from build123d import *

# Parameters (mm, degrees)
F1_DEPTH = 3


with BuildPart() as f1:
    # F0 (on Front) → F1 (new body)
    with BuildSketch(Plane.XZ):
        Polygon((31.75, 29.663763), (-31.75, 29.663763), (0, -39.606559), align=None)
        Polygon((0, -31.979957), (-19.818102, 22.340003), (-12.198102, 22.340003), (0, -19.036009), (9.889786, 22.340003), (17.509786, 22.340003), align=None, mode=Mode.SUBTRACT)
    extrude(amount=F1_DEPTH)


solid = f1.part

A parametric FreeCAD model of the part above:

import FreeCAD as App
import Part
import Sketcher
Q = App.Units.Quantity


def add_polygon(sketch, points):
    """Adds a closed chain of lines whose ends are joined by coincident constraints."""
    first, n = sketch.GeometryCount, len(points)
    for a, b in zip(points, points[1:] + points[:1]):
        sketch.addGeometry(Part.LineSegment(App.Vector(*a, 0), App.Vector(*b, 0)), False)
    for i in range(n):
        sketch.addConstraint(Sketcher.Constraint("Coincident", first + i, 2, first + (i + 1) % n, 1))

doc = App.newDocument("Part")
body = doc.addObject("PartDesign::Body", "Body")

sketch1 = body.newObject("Sketcher::SketchObject", "Sketch")
sketch1.AttachmentSupport = (doc.getObject("XZ_Plane"), [""])
sketch1.MapMode = "FlatFace"
add_polygon(sketch1, [(32, 30), (-32, 30), (0, -40)])
add_polygon(sketch1, [(18, 22), (0, -32), (-20, 22), (-12, 22), (0, -19), (10, 22)])
sketch1.addConstraint(Sketcher.Constraint("Horizontal", 0))
sketch1.addConstraint(Sketcher.Constraint("Horizontal", 5))
sketch1.addConstraint(Sketcher.Constraint("Horizontal", 8))
sketch1.addConstraint(Sketcher.Constraint("PointOnObject", 1, 2, -2))
sketch1.addConstraint(Sketcher.Constraint("PointOnObject", 3, 2, -2))
sketch1.addConstraint(Sketcher.Constraint("PointOnObject", 6, 2, -2))
sketch1.addConstraint(Sketcher.Constraint("Horizontal", 5, 2, 7, 2))
sketch1.addConstraint(Sketcher.Constraint("Equal", 5, 8))
sketch1.addConstraint(Sketcher.Constraint("Equal", 1, 2))
sketch1.addConstraint(Sketcher.Constraint("Distance", 1, Q("3 in")))
sketch1.addConstraint(Sketcher.Constraint("DistanceX", 0, 2, 0, 1, Q("2.5 in")))
sketch1.addConstraint(Sketcher.Constraint("DistanceX", 5, 1, 5, 2, Q("0.3 in")))
sketch1.addConstraint(Sketcher.Constraint("DistanceX", 4, 2, -1, 1, 19.818102))
sketch1.addConstraint(Sketcher.Constraint("DistanceY", 1, 2, 3, 2, 7.626602))
sketch1.addConstraint(Sketcher.Constraint("Distance", 3, 57.072328))
sketch1.addConstraint(Sketcher.Constraint("Distance", 6, 43.136621))
sketch1.addConstraint(Sketcher.Constraint("DistanceY", 1, 2, -1, 1, 39.606559))
sketch1.addConstraint(Sketcher.Constraint("DistanceY", 6, 2, -1, 1, 19.036009))
pad1 = body.newObject("PartDesign::Pad", "Pad")
pad1.Profile = sketch1
pad1.Length = 3

doc.recompute()
